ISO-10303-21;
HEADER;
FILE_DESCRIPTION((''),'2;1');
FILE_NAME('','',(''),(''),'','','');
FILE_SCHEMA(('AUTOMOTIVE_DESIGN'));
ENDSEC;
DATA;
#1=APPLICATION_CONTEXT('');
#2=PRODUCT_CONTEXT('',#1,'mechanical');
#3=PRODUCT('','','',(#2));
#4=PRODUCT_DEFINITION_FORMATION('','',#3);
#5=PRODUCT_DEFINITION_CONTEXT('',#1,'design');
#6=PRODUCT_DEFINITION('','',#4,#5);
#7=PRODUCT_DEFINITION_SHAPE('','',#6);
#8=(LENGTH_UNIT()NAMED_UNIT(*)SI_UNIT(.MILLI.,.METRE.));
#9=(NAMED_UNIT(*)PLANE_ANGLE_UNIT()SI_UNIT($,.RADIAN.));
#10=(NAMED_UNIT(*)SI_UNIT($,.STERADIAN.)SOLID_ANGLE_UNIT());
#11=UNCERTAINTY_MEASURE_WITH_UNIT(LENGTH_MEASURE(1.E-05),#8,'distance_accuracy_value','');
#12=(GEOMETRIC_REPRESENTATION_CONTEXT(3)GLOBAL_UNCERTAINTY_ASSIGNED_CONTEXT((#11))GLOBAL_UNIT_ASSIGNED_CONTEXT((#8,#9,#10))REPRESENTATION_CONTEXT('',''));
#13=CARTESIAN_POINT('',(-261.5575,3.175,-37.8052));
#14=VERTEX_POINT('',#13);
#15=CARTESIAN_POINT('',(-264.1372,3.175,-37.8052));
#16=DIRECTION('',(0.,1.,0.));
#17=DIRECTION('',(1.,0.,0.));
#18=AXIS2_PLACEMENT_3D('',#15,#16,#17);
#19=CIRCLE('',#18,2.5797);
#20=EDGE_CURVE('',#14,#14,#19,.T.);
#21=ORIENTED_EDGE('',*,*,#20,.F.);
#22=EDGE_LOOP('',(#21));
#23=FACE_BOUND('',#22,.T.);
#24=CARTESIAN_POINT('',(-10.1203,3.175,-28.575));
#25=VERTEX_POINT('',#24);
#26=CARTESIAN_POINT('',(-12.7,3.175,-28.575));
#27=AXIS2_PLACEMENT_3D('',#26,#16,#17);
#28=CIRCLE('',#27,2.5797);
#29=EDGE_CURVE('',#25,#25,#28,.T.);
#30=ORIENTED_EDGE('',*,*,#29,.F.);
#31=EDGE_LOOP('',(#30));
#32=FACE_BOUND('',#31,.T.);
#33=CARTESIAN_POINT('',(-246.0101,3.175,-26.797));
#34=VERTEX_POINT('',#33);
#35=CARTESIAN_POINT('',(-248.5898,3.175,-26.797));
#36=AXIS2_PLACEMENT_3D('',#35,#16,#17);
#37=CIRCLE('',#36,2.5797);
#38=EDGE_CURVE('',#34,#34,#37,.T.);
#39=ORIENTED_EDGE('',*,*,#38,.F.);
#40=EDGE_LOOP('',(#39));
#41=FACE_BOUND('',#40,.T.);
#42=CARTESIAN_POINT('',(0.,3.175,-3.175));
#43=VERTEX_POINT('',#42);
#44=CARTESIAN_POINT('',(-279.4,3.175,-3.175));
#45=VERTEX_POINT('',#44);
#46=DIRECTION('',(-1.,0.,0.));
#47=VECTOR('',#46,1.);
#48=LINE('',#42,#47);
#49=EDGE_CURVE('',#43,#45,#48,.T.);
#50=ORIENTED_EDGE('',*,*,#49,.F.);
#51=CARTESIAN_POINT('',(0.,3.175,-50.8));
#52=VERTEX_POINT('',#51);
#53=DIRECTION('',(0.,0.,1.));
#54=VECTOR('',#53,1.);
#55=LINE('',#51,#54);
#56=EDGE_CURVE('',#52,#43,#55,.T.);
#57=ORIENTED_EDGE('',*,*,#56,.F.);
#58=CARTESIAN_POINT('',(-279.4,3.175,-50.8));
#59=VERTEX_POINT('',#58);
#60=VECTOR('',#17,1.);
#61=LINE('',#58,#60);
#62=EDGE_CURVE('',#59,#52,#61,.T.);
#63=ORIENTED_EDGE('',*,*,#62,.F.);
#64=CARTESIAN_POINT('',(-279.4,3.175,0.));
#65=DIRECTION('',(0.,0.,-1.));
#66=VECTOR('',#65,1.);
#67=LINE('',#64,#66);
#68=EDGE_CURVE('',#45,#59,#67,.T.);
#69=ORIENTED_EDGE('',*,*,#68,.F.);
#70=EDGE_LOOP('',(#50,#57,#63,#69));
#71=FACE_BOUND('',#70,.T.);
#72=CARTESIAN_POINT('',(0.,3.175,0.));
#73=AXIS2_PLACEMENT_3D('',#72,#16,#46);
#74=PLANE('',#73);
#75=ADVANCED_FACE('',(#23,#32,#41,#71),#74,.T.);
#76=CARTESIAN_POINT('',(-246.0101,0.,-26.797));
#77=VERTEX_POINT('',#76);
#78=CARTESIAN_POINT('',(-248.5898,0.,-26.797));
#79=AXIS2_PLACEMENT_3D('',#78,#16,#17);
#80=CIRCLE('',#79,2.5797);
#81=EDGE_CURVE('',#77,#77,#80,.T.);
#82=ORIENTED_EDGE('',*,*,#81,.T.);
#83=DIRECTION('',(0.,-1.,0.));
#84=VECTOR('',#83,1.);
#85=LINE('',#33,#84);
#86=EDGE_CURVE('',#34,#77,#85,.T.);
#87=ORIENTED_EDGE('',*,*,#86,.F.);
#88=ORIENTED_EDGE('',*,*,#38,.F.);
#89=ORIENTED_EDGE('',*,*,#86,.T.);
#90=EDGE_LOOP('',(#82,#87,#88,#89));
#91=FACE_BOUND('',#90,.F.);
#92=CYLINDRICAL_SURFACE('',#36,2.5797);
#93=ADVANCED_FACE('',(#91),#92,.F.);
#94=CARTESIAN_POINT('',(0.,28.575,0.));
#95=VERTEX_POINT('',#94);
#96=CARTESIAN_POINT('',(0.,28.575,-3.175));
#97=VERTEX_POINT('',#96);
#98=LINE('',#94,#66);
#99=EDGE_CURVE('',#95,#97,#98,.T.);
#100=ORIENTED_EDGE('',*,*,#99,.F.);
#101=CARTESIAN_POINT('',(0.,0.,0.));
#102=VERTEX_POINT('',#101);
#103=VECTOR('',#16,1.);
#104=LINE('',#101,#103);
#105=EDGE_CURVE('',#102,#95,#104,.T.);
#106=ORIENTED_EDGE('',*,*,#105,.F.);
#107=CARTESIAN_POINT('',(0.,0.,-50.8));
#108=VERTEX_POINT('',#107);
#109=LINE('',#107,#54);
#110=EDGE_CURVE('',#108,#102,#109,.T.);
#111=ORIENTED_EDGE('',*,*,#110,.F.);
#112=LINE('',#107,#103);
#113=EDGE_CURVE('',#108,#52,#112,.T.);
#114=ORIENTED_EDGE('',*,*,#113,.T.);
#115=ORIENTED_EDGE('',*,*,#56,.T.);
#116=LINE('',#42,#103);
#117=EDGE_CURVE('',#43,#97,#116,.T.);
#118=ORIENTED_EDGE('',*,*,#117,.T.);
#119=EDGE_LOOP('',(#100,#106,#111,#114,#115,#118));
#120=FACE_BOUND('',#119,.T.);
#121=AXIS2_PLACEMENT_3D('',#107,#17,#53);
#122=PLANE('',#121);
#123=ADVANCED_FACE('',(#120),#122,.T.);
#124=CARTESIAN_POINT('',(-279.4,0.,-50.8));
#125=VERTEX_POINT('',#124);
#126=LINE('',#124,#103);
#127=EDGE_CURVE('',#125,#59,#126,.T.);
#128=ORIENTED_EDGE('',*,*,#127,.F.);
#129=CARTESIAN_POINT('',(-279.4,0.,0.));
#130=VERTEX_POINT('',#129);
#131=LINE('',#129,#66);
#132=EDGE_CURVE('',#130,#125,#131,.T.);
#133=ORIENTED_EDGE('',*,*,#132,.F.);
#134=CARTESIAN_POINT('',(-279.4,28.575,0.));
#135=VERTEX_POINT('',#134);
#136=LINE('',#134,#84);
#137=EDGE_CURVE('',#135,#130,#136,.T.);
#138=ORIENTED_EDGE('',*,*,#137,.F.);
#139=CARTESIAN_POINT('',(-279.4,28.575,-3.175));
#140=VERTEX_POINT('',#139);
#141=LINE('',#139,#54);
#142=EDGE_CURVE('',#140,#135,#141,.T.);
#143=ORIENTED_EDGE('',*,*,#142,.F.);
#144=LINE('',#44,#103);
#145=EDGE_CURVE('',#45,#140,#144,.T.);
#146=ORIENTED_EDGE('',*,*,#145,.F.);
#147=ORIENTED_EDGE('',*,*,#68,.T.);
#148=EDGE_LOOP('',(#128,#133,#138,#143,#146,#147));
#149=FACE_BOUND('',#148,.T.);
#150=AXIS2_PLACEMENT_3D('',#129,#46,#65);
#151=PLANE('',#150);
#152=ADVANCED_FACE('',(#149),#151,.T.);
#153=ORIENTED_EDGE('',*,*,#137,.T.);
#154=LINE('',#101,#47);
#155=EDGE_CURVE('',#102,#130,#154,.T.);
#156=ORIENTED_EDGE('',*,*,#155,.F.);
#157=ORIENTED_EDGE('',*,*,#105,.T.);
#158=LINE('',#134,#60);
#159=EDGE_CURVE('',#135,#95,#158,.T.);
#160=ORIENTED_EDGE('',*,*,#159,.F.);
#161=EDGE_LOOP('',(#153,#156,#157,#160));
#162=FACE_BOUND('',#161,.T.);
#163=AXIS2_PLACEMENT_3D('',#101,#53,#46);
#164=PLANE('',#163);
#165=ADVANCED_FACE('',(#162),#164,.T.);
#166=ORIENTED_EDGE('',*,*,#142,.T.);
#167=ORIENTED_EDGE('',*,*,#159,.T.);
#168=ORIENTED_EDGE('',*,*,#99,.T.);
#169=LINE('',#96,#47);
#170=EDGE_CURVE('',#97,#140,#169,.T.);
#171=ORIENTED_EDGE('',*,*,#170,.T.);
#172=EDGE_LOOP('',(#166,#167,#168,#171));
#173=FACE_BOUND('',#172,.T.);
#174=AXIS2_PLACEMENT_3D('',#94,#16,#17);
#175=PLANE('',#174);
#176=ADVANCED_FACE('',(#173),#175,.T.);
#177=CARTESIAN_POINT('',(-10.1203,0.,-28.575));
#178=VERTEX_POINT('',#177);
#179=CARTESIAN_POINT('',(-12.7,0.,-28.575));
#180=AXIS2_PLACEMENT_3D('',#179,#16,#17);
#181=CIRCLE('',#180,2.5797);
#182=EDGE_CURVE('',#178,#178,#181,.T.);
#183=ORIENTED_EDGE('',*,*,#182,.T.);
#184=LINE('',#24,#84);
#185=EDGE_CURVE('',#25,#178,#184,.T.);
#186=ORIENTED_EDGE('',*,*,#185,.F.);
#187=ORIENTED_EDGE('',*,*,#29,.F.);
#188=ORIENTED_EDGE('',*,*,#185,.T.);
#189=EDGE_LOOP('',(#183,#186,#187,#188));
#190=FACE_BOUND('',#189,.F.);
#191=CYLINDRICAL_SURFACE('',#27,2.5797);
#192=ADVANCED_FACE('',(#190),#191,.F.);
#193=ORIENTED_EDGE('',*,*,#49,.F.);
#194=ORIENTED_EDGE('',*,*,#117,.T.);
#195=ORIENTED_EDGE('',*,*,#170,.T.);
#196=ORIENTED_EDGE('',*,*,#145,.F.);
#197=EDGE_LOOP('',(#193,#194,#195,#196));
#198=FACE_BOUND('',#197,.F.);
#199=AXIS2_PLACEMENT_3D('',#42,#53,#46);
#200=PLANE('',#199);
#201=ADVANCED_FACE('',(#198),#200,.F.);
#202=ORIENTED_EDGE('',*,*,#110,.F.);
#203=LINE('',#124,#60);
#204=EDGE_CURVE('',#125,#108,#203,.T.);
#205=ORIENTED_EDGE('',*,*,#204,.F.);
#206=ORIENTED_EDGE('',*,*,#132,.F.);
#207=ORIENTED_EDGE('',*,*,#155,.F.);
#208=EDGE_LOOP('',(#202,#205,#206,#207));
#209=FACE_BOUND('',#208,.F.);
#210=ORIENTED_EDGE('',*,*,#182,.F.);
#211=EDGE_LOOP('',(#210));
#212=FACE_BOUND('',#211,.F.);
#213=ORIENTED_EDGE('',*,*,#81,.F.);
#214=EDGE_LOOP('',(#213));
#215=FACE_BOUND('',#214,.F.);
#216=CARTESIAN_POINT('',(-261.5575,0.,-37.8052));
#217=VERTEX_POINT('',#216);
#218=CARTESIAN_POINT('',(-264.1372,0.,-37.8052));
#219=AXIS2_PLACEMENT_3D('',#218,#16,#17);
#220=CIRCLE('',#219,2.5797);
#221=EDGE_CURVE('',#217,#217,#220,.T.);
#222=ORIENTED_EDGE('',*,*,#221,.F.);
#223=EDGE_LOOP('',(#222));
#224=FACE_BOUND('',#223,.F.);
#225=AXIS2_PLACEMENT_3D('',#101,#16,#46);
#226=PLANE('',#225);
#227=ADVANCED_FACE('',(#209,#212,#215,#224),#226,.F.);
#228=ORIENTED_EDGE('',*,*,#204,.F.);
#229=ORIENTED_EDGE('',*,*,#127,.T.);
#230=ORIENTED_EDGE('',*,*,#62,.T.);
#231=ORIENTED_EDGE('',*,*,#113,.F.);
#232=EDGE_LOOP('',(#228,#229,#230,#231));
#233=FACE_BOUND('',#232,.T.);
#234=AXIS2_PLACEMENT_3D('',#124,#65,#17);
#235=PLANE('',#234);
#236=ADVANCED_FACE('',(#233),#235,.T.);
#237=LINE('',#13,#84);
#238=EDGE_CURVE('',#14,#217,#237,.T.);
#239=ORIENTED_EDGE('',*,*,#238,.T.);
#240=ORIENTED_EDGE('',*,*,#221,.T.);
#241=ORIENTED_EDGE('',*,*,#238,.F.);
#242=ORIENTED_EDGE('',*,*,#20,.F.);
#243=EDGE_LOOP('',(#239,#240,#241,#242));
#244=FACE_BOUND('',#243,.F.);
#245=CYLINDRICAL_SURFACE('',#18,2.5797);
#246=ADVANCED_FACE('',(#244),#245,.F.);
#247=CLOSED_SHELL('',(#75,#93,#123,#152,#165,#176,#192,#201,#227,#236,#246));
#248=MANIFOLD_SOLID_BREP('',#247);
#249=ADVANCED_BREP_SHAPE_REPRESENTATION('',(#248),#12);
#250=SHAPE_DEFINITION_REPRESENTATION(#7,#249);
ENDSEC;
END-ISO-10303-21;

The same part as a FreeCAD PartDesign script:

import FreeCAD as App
import Part
import Sketcher

V = App.Vector
Q = App.Units.Quantity

doc = App.newDocument("Part")
params = doc.addObject("Spreadsheet::Sheet", "Params")
for row, (alias, value) in enumerate([
    ("sketch1_width", "11 in"),
    ("sketch1_height", "2 in"),
    ("pad1_length", "0.125 in"),
    ("sketch2_width", "11 in"),
    ("sketch2_height", "0.125 in"),
    ("pad2_length", "1 in"),
    ("sketch3_diameter", "0.203126 in"),
    ("pocket1_length", "1 in"),
    ("sketch4_diameter", "0.203126 in"),
    ("pocket2_length", "1 in"),
], start=1):
    params.set(f"A{row}", alias)
    params.set(f"B{row}", "=" + value)
    params.setAlias(f"B{row}", alias)

body = doc.addObject("PartDesign::Body", "Body")

sketch1 = body.newObject("Sketcher::SketchObject", "Sketch")
sketch1.AttachmentSupport = (doc.getObject("XZ_Plane"), [""])
sketch1.MapMode = "FlatFace"
sketch1.addGeometry([
    Part.LineSegment(V(-279.4, 0, 0), V(0, 0, 0)),
    Part.LineSegment(V(0, 0, 0), V(0, -50.8, 0)),
    Part.LineSegment(V(0, -50.8, 0), V(-279.4, -50.8, 0)),
    Part.LineSegment(V(-279.4, -50.8, 0), V(-279.4, 0, 0)),
], False)
sketch1.addConstraint([
    Sketcher.Constraint("Coincident", 0, 2, 1, 1),
    Sketcher.Constraint("Coincident", 1, 2, 2, 1),
    Sketcher.Constraint("Coincident", 2, 2, 3, 1),
    Sketcher.Constraint("Coincident", 3, 2, 0, 1),
    Sketcher.Constraint("Horizontal", 0),
    Sketcher.Constraint("Vertical", 1),
    Sketcher.Constraint("Horizontal", 2),
    Sketcher.Constraint("Vertical", 3),
    Sketcher.Constraint("Coincident", 0, 2, -1, 1),
    Sketcher.Constraint("DistanceX", 0, 1, 0, 2, Q("11 in")),
    Sketcher.Constraint("DistanceY", 1, 2, 1, 1, Q("2 in")),
])
sketch1.setExpression("Constraints[9]", "Params.sketch1_width")
sketch1.setExpression("Constraints[10]", "Params.sketch1_height")
pad1 = body.newObject("PartDesign::Pad", "Pad")
pad1.Profile = sketch1
pad1.setExpression("Length", "Params.pad1_length")
pad1.Reversed = True

sketch2 = body.newObject("Sketcher::SketchObject", "Sketch001")
sketch2.AttachmentSupport = (doc.getObject("XZ_Plane"), [""])
sketch2.MapMode = "FlatFace"
sketch2.AttachmentOffset = App.Placement(V(0, 0, -0.125 * 25.4), App.Rotation())
sketch2.addGeometry([
    Part.LineSegment(V(-279.4, -3.175, 0), V(-279.4, 0, 0)),
    Part.LineSegment(V(-279.4, 0, 0), V(0, 0, 0)),
    Part.LineSegment(V(0, 0, 0), V(0, -3.175, 0)),
    Part.LineSegment(V(0, -3.175, 0), V(-279.4, -3.175, 0)),
], False)
sketch2.addConstraint([
    Sketcher.Constraint("Coincident", 0, 2, 1, 1),
    Sketcher.Constraint("Coincident", 1, 2, 2, 1),
    Sketcher.Constraint("Coincident", 2, 2, 3, 1),
    Sketcher.Constraint("Coincident", 3, 2, 0, 1),
    Sketcher.Constraint("Vertical", 0),
    Sketcher.Constraint("Horizontal", 1),
    Sketcher.Constraint("Vertical", 2),
    Sketcher.Constraint("Horizontal", 3),
    Sketcher.Constraint("Coincident", 1, 2, -1, 1),
    Sketcher.Constraint("DistanceX", 1, 1, 1, 2, Q("11 in")),
    Sketcher.Constraint("DistanceY", 0, 1, 0, 2, Q("0.125 in")),
])
sketch2.setExpression("Constraints[9]", "Params.sketch2_width")
sketch2.setExpression("Constraints[10]", "Params.sketch2_height")
pad2 = body.newObject("PartDesign::Pad", "Pad001")
pad2.Profile = sketch2
pad2.setExpression("Length", "Params.pad2_length")
pad2.Reversed = True

sketch3 = body.newObject("Sketcher::SketchObject", "Sketch002")
sketch3.AttachmentSupport = (doc.getObject("XZ_Plane"), [""])
sketch3.MapMode = "FlatFace"
sketch3.AttachmentOffset = App.Placement(V(0, 0, -0.125 * 25.4), App.Rotation())
sketch3.addGeometry([
    Part.Circle(V(-248.5898, -26.797, 0), V(0, 0, 1), 2.5797),
    Part.Circle(V(-264.1372, -37.8052, 0), V(0, 0, 1), 2.5797),
], False)
sketch3.addConstraint([
    Sketcher.Constraint("Equal", 0, 1),
    Sketcher.Constraint("Diameter", 0, Q("0.203126 in")),
    Sketcher.Constraint("DistanceX", 0, 3, -1, 1, Q("9.787 in")),
    Sketcher.Constraint("DistanceY", 0, 3, -1, 1, Q("1.055 in")),
    Sketcher.Constraint("DistanceX", 1, 3, -1, 1, Q("10.3991 in")),
    Sketcher.Constraint("DistanceY", 1, 3, -1, 1, Q("1.4884 in")),
])
sketch3.setExpression("Constraints[1]", "Params.sketch3_diameter")
pocket1 = body.newObject("PartDesign::Pocket", "Pocket")
pocket1.Profile = sketch3
pocket1.setExpression("Length", "Params.pocket1_length")
pocket1.Reversed = True

sketch4 = body.newObject("Sketcher::SketchObject", "Sketch003")
sketch4.AttachmentSupport = (doc.getObject("XZ_Plane"), [""])
sketch4.MapMode = "FlatFace"
sketch4.AttachmentOffset = App.Placement(V(0, 0, -0.125 * 25.4), App.Rotation())
sketch4.addGeometry(Part.Circle(V(-12.7, -28.575, 0), V(0, 0, 1), 2.5797), False)
sketch4.addConstraint([
    Sketcher.Constraint("Diameter", 0, Q("0.203126 in")),
    Sketcher.Constraint("DistanceX", 0, 3, -1, 1, Q("0.5 in")),
    Sketcher.Constraint("DistanceY", 0, 3, -1, 1, Q("1.125 in")),
])
sketch4.setExpression("Constraints[0]", "Params.sketch4_diameter")
pocket2 = body.newObject("PartDesign::Pocket", "Pocket001")
pocket2.Profile = sketch4
pocket2.setExpression("Length", "Params.pocket2_length")
pocket2.Reversed = True

doc.recompute()
